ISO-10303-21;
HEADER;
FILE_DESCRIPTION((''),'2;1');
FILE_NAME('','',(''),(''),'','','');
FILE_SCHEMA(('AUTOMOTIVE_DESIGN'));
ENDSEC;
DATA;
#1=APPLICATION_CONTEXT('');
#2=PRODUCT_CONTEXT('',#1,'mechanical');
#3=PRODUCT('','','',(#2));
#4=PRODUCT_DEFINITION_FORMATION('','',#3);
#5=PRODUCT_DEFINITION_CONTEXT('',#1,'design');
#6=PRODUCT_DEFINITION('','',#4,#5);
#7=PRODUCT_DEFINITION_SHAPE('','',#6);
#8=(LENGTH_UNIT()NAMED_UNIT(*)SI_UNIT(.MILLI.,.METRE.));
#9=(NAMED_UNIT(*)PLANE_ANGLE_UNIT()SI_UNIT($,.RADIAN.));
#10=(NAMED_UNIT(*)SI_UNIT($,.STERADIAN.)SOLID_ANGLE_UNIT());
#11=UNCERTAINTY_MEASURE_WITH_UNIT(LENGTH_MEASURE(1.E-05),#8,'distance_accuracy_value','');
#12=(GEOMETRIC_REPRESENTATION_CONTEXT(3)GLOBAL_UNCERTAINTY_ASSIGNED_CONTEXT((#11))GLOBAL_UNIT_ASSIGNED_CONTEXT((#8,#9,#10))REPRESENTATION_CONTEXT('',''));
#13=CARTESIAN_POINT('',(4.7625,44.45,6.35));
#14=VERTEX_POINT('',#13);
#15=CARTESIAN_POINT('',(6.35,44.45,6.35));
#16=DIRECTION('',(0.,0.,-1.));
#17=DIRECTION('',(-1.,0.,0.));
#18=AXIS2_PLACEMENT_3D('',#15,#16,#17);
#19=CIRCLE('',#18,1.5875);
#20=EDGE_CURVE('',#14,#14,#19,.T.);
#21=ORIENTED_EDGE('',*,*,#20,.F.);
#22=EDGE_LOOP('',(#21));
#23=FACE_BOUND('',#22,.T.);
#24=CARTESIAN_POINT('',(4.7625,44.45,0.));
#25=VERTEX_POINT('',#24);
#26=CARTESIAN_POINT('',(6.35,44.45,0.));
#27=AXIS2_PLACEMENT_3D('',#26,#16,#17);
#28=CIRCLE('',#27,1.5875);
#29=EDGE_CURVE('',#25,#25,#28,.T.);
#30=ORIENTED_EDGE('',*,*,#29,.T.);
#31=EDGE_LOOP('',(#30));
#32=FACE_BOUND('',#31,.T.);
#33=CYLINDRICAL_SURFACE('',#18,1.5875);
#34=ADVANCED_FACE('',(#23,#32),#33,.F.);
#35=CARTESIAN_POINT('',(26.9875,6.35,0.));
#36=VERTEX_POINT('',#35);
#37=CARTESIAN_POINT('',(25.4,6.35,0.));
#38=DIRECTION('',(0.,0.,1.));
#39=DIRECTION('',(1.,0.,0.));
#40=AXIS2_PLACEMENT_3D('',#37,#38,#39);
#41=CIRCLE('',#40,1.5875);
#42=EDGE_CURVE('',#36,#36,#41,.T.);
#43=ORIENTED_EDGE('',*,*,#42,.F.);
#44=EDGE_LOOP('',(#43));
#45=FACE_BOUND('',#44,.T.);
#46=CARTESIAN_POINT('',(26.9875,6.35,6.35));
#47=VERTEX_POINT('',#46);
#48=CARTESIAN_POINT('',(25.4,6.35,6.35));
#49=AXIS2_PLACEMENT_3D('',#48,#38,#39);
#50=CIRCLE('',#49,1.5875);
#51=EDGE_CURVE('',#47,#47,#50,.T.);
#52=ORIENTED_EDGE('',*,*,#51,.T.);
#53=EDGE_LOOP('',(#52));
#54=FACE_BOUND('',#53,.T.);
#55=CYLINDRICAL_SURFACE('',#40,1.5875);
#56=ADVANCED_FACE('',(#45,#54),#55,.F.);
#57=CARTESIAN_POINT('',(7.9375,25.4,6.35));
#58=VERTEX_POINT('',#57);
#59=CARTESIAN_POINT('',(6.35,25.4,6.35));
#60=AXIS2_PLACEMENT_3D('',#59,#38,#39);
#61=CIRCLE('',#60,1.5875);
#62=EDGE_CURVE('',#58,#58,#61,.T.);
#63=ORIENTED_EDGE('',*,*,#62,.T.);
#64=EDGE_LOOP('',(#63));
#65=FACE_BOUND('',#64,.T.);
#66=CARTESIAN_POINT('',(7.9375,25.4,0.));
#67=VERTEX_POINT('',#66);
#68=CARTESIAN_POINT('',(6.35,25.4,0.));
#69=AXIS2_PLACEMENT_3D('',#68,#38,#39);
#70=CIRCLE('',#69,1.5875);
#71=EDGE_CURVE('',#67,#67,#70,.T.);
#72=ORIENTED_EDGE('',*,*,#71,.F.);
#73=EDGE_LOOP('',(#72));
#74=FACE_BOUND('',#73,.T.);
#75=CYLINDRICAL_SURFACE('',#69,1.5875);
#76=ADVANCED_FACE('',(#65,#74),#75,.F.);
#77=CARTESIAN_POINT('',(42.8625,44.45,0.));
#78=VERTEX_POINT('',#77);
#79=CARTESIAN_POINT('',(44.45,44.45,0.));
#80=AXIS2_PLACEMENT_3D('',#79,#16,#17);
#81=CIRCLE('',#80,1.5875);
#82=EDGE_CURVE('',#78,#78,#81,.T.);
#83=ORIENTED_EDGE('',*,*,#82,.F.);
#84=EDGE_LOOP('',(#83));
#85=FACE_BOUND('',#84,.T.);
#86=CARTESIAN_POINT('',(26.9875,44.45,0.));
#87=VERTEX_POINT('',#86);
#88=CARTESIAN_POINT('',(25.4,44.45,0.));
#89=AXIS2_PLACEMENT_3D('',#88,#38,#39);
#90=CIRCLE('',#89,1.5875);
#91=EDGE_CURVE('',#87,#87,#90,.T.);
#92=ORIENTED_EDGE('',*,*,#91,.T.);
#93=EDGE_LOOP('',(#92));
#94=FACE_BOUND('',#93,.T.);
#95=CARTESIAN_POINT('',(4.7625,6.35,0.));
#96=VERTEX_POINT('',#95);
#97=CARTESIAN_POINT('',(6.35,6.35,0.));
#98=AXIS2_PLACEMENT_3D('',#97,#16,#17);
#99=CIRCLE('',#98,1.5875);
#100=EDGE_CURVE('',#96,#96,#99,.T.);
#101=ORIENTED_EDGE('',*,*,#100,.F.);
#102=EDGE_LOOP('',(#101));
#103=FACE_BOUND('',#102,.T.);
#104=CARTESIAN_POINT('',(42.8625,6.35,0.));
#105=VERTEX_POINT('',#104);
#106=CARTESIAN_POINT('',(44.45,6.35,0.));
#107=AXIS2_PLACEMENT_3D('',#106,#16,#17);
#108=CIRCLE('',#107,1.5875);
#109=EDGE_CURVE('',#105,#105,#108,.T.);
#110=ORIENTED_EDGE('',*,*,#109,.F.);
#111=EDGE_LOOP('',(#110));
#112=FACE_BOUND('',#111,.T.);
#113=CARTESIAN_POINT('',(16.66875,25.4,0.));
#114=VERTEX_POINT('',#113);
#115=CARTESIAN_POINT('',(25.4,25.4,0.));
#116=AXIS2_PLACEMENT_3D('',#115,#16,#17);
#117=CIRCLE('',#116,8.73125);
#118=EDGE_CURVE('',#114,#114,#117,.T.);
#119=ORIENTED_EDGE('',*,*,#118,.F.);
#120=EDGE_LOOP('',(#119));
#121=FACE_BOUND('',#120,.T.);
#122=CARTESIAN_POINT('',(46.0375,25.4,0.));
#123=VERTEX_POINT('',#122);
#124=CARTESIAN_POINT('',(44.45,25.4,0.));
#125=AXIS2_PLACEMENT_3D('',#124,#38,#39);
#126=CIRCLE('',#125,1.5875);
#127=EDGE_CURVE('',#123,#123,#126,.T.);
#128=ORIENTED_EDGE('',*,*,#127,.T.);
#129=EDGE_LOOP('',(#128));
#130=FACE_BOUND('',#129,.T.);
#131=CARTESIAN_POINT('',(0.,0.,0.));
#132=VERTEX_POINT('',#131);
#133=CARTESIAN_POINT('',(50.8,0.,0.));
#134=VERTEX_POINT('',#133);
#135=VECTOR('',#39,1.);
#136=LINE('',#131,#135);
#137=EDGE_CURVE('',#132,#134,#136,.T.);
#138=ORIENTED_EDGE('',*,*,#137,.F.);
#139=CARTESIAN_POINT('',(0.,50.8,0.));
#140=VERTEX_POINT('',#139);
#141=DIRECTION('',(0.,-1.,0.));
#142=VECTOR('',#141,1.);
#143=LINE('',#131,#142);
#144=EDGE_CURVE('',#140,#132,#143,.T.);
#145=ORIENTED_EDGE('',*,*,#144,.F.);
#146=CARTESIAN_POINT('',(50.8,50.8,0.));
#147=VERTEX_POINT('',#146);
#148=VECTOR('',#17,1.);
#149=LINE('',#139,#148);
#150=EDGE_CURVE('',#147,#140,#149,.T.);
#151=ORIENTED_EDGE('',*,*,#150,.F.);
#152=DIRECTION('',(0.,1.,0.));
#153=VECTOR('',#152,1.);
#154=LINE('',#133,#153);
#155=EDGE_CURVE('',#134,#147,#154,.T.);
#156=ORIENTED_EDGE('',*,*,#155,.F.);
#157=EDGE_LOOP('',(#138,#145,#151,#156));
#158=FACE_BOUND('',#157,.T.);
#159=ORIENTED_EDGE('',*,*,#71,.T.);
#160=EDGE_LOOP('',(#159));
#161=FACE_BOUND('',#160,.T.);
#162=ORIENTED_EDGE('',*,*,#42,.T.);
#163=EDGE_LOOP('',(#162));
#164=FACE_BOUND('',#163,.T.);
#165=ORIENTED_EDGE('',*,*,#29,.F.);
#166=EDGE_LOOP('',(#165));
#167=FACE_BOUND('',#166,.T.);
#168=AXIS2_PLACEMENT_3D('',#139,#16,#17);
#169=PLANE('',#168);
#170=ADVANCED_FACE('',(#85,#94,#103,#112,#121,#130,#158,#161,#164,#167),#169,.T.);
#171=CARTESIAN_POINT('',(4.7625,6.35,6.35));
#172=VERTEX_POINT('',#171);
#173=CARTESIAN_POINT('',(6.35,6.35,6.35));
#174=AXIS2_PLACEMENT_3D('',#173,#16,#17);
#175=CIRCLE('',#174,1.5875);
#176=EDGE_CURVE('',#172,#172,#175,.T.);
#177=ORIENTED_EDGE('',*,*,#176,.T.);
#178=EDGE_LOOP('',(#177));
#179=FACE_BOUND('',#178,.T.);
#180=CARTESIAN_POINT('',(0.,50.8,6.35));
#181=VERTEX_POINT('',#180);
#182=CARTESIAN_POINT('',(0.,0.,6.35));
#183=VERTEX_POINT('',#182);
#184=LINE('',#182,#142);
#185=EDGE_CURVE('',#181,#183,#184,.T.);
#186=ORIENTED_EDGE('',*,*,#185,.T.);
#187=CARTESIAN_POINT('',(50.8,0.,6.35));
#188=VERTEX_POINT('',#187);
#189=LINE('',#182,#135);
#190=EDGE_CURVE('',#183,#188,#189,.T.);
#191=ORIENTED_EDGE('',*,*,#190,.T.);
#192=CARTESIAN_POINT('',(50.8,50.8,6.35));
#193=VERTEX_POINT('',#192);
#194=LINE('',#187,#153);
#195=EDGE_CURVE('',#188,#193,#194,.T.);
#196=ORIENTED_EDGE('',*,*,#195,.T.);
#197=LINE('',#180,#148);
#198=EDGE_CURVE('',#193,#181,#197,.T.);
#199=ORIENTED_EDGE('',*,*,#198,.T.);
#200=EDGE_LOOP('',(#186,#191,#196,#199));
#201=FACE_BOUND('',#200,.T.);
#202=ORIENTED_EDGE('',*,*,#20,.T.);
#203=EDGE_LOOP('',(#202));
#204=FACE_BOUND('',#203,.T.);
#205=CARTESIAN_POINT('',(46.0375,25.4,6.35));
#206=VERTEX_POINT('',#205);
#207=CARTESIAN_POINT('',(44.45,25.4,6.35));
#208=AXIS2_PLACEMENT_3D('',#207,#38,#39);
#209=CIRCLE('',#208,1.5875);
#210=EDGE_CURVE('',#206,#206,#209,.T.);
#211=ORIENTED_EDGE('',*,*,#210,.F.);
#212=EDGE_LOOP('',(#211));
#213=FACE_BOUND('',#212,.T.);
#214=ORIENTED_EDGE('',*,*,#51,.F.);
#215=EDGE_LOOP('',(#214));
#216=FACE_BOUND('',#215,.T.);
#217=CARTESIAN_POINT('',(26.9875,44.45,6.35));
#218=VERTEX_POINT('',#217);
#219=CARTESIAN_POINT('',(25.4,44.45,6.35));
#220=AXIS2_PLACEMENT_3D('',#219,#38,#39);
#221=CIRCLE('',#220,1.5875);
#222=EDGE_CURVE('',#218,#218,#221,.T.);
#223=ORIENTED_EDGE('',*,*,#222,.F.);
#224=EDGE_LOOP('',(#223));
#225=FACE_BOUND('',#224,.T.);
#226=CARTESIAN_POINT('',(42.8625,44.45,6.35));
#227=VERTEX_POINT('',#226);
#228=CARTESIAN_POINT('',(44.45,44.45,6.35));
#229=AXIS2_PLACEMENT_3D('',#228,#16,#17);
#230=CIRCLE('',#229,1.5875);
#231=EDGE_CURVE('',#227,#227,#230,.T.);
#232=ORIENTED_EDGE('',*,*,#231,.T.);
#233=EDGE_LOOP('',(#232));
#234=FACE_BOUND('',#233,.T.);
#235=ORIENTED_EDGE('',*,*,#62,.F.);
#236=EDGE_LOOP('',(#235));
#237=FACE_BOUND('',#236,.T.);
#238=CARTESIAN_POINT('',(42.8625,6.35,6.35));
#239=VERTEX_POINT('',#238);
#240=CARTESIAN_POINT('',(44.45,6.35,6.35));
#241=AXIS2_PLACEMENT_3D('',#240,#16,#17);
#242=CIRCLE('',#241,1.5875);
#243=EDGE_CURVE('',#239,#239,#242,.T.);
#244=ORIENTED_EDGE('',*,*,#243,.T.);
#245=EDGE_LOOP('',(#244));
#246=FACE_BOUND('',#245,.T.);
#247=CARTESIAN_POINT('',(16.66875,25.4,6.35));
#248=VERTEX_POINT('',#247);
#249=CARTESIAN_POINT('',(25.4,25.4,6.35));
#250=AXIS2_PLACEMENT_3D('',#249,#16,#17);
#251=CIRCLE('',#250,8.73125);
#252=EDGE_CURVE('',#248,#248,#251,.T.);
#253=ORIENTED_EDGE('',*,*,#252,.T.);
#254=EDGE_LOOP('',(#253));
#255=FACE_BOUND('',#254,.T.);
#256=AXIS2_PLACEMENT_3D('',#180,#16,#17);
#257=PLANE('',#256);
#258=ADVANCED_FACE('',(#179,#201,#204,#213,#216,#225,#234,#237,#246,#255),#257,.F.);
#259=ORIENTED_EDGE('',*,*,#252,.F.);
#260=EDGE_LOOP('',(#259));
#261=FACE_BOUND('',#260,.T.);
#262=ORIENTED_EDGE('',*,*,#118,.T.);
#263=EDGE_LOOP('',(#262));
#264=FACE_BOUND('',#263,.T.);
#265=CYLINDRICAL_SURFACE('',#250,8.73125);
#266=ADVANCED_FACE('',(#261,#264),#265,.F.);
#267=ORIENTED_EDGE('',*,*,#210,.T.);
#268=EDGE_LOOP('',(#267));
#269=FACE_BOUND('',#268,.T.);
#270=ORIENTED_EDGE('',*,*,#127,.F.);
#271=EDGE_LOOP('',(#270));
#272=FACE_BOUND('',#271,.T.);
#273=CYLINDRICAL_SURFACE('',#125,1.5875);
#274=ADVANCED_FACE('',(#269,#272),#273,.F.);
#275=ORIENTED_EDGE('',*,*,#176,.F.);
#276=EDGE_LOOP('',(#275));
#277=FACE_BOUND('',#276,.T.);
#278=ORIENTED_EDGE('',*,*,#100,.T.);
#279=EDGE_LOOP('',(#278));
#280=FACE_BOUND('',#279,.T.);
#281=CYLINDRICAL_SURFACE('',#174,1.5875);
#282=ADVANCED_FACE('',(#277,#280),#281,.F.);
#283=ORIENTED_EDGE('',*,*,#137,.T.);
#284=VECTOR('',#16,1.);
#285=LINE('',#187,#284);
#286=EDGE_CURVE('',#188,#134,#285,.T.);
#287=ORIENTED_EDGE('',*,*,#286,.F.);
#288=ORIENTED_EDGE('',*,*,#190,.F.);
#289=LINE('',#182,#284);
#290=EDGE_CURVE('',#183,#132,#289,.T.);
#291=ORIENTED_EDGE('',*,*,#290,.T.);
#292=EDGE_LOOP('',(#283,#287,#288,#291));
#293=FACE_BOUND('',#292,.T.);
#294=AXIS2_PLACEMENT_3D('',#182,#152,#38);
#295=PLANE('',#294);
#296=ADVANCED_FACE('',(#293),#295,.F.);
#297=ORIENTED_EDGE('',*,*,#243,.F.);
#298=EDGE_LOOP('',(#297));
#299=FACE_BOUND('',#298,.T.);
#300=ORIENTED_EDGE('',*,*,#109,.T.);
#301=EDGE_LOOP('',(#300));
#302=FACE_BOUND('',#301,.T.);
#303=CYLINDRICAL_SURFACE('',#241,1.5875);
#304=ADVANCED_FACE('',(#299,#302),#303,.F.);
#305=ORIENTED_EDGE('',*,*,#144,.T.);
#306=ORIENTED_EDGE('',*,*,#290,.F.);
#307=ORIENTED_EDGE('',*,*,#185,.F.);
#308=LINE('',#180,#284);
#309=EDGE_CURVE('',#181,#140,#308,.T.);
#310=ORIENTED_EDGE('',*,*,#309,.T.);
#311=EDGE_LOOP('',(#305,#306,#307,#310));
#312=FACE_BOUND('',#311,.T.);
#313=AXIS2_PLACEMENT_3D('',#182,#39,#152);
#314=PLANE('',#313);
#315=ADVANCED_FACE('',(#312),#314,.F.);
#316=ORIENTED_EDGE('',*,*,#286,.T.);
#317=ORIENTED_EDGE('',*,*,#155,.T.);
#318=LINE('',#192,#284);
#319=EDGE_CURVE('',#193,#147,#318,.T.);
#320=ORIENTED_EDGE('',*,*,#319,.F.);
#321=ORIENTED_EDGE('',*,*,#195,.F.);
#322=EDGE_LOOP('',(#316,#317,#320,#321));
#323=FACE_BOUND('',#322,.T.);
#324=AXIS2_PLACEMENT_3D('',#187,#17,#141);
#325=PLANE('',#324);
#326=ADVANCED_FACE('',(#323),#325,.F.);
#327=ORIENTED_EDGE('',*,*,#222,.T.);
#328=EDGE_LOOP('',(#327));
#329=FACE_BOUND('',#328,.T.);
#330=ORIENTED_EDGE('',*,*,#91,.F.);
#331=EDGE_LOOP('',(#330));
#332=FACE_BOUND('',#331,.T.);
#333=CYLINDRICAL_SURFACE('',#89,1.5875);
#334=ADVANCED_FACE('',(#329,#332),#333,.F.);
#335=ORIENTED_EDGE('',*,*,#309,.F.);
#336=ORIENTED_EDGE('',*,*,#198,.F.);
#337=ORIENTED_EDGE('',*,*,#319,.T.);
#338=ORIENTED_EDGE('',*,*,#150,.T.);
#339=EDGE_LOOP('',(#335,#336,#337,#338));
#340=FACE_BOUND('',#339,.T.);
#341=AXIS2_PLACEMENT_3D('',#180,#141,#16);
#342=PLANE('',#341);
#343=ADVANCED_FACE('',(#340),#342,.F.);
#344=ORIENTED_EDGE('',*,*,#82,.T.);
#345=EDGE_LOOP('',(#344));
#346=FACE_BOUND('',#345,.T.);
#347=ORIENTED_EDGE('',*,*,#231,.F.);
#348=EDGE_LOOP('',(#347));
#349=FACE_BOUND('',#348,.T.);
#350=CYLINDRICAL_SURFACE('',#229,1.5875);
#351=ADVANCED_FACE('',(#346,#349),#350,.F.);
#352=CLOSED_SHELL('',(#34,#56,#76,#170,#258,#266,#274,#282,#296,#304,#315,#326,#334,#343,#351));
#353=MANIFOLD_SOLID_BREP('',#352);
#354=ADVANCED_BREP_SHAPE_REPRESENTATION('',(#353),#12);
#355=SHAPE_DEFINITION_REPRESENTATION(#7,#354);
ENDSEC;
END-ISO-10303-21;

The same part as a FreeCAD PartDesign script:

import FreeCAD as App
import Part
import Sketcher

V = App.Vector
Q = App.Units.Quantity


def add_polygon(sketch, points):
    """Adds a closed chain of lines whose ends are joined by coincident constraints."""
    first, n = sketch.GeometryCount, len(points)
    for a, b in zip(points, points[1:] + points[:1]):
        sketch.addGeometry(Part.LineSegment(App.Vector(*a, 0), App.Vector(*b, 0)), False)
    for i in range(n):
        sketch.addConstraint(Sketcher.Constraint("Coincident", first + i, 2, first + (i + 1) % n, 1))

doc = App.newDocument("Part")
params = doc.addObject("Spreadsheet::Sheet", "Params")
for row, (alias, value) in enumerate([
    ("sketch1_width", "2 in"),
    ("pad1_length", "0.25 in"),
    ("sketch2_diameter", "0.6875 in"),
    ("sketch3_diameter", "0.125 in"),
    ("sketch4_diameter", "0.125 in"),
], start=1):
    params.set(f"A{row}", alias)
    params.set(f"B{row}", "=" + value)
    params.setAlias(f"B{row}", alias)

body = doc.addObject("PartDesign::Body", "Body")

# Sketch on XY plane
sketch1 = doc.addObject("Sketcher::SketchObject", "Sketch")
body.addObject(sketch1)
sketch1.AttachmentSupport = (doc.XY_Plane, [""])
sketch1.MapMode = "FlatFace"
add_polygon(sketch1, [(0, 51), (0, 0), (51, 0), (51, 51)])  # lines 0-3
sketch1.addConstraint([
    Sketcher.Constraint("Vertical", 0),
    Sketcher.Constraint("Horizontal", 1),
    Sketcher.Constraint("Vertical", 2),
    Sketcher.Constraint("Horizontal", 3),
    Sketcher.Constraint("Coincident", 0, 2, -1, 1),
    Sketcher.Constraint("Equal", 3, 0),
    Sketcher.Constraint("DistanceX", 1, 1, 1, 2, Q("2 in")),
])
sketch1.setExpression("Constraints[10]", "Params.sketch1_width")
pad1 = doc.addObject("PartDesign::Pad", "Pad")
body.addObject(pad1)
pad1.Profile = sketch1
pad1.setExpression("Length", "Params.pad1_length")

# Sketch on XY plane
sketch2 = doc.addObject("Sketcher::SketchObject", "Sketch001")
body.addObject(sketch2)
sketch2.AttachmentSupport = (doc.XY_Plane, [""])
sketch2.MapMode = "FlatFace"
sketch2.addGeometry(Part.Circle(V(25, 25, 0), V(0, 0, 1), 9), False)
sketch2.addConstraint([
    Sketcher.Constraint("Diameter", 0, Q("0.6875 in")),
    Sketcher.Constraint("DistanceX", -1, 1, 0, 3, Q("1 in")),
    Sketcher.Constraint("DistanceY", -1, 1, 0, 3, Q("1 in")),
])
sketch2.setExpression("Constraints[0]", "Params.sketch2_diameter")
pocket1 = doc.addObject("PartDesign::Pocket", "Pocket")
body.addObject(pocket1)
pocket1.Profile = sketch2
pocket1.Type = "ThroughAll"
pocket1.Reversed = True

# Sketch on XY plane
sketch3 = doc.addObject("Sketcher::SketchObject", "Sketch002")
body.addObject(sketch3)
sketch3.AttachmentSupport = (doc.XY_Plane, [""])
sketch3.MapMode = "FlatFace"
sketch3.AttachmentOffset = App.Placement(V(0, 0, 0.25 * 25.4), App.Rotation())
sketch3.addGeometry([
    Part.Circle(V(25.4, 6.3, 0), V(0, 0, 1), 1.6),
    Part.Circle(V(6.3, 25.4, 0), V(0, 0, 1), 1.6),
    Part.Circle(V(25.4, 44.5, 0), V(0, 0, 1), 1.6),
    Part.Circle(V(44.5, 25.4, 0), V(0, 0, 1), 1.6),
], False)
sketch3.addConstraint([
    Sketcher.Constraint("Equal", 0, 1),
    Sketcher.Constraint("Equal", 1, 2),
    Sketcher.Constraint("Equal", 2, 3),
    Sketcher.Constraint("Horizontal", 1, 3, 3, 3),
    Sketcher.Constraint("Vertical", 0, 3, 2, 3),
    Sketcher.Constraint("Diameter", 0, Q("0.125 in")),
    Sketcher.Constraint("DistanceX", -1, 1, 0, 3, Q("1 in")),
    Sketcher.Constraint("DistanceY", -1, 1, 1, 3, Q("1 in")),
    Sketcher.Constraint("DistanceY", 0, 3, 2, 3, Q("1.5 in")),
    Sketcher.Constraint("DistanceX", 1, 3, 3, 3, Q("1.5 in")),
    Sketcher.Constraint("DistanceY", -1, 1, 0, 3, Q("0.25 in")),
    Sketcher.Constraint("DistanceX", -1, 1, 1, 3, Q("0.25 in")),
])
sketch3.setExpression("Constraints[5]", "Params.sketch3_diameter")
pocket2 = doc.addObject("PartDesign::Pocket", "Pocket001")
body.addObject(pocket2)
pocket2.Profile = sketch3
pocket2.Type = "ThroughAll"

# Sketch on XY plane
sketch4 = doc.addObject("Sketcher::SketchObject", "Sketch003")
body.addObject(sketch4)
sketch4.AttachmentSupport = (doc.XY_Plane, [""])
sketch4.MapMode = "FlatFace"
sketch4.addGeometry([
    Part.Circle(V(6.3, 6.3, 0), V(0, 0, 1), 1.6),
    Part.Circle(V(44.5, 6.3, 0), V(0, 0, 1), 1.6),
    Part.Circle(V(44.5, 44.5, 0), V(0, 0, 1), 1.6),
    Part.Circle(V(6.3, 44.5, 0), V(0, 0, 1), 1.6),
], False)
sketch4.addConstraint([
    Sketcher.Constraint("Equal", 0, 1),
    Sketcher.Constraint("Equal", 1, 2),
    Sketcher.Constraint("Equal", 2, 3),
    Sketcher.Constraint("Horizontal", 0, 3, 1, 3),
    Sketcher.Constraint("Horizontal", 2, 3, 3, 3),
    Sketcher.Constraint("Vertical", 1, 3, 2, 3),
    Sketcher.Constraint("Vertical", 0, 3, 3, 3),
    Sketcher.Constraint("Diameter", 0, Q("0.125 in")),
    Sketcher.Constraint("DistanceX", 0, 3, 1, 3, Q("1.5 in")),
    Sketcher.Constraint("DistanceY", 1, 3, 2, 3, Q("1.5 in")),
    Sketcher.Constraint("DistanceX", -1, 1, 0, 3, Q("0.25 in")),
    Sketcher.Constraint("DistanceY", -1, 1, 0, 3, Q("0.25 in")),
])
sketch4.setExpression("Constraints[7]", "Params.sketch4_diameter")
pocket3 = doc.addObject("PartDesign::Pocket", "Pocket002")
body.addObject(pocket3)
pocket3.Profile = sketch4
pocket3.Type = "ThroughAll"
pocket3.Reversed = True

doc.recompute()
